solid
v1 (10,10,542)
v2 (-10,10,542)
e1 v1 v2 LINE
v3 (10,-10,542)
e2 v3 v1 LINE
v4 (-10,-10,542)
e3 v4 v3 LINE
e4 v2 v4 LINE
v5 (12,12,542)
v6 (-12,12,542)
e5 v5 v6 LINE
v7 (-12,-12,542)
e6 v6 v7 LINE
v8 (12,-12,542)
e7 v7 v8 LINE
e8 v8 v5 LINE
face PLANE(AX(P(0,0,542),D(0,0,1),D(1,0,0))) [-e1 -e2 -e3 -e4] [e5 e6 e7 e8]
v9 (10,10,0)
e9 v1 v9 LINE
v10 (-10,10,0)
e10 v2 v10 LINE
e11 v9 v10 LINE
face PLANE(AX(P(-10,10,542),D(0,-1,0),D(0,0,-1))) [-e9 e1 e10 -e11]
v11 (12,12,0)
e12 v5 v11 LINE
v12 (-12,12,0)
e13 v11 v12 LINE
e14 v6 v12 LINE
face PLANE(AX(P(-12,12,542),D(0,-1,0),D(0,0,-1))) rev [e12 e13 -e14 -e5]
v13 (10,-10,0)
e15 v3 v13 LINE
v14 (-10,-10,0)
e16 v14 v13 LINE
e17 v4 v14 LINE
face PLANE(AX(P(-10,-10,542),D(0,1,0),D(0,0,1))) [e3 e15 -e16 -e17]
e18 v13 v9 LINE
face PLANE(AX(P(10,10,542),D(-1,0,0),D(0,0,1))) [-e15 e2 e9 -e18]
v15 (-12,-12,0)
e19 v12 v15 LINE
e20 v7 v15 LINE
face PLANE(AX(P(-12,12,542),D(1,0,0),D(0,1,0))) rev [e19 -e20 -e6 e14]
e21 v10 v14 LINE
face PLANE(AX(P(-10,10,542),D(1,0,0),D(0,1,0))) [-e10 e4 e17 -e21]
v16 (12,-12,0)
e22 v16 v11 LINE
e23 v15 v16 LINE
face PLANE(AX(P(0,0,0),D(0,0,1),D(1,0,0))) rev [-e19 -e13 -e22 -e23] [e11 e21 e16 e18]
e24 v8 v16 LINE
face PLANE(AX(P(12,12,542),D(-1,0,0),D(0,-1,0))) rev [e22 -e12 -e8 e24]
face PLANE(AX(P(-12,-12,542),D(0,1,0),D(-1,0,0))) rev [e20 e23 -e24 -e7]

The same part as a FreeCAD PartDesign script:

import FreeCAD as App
import Part
import Sketcher
Q = App.Units.Quantity

doc = App.newDocument("Part")
body = doc.addObject("PartDesign::Body", "Body")

# Sketch on XY plane
sketch1 = doc.addObject("Sketcher::SketchObject", "Sketch")
body.addObject(sketch1)
sketch1.AttachmentSupport = (doc.XY_Plane, [""])
sketch1.MapMode = "FlatFace"
sketch1.addGeometry([
    Part.LineSegment(App.Vector(-12, 12, 0), App.Vector(-12, -12, 0)),  # 0
    Part.LineSegment(App.Vector(-12, -12, 0), App.Vector(12, -12, 0)),  # 1
    Part.LineSegment(App.Vector(12, -12, 0), App.Vector(12, 12, 0)),  # 2
    Part.LineSegment(App.Vector(12, 12, 0), App.Vector(-12, 12, 0)),  # 3
    Part.LineSegment(App.Vector(10, -10, 0), App.Vector(-10, -10, 0)),  # 4
    Part.LineSegment(App.Vector(-10, -10, 0), App.Vector(-10, 10, 0)),  # 5
    Part.LineSegment(App.Vector(-10, 10, 0), App.Vector(10, 10, 0)),  # 6
    Part.LineSegment(App.Vector(10, 10, 0), App.Vector(10, -10, 0)),  # 7
], False)
sketch1.addConstraint([
    Sketcher.Constraint("Coincident", 0, 2, 1, 1),
    Sketcher.Constraint("Coincident", 1, 2, 2, 1),
    Sketcher.Constraint("Coincident", 2, 2, 3, 1),
    Sketcher.Constraint("Coincident", 3, 2, 0, 1),
    Sketcher.Constraint("Coincident", 4, 2, 5, 1),
    Sketcher.Constraint("Coincident", 5, 2, 6, 1),
    Sketcher.Constraint("Coincident", 6, 2, 7, 1),
    Sketcher.Constraint("Coincident", 7, 2, 4, 1),
    Sketcher.Constraint("Vertical", 0),
    Sketcher.Constraint("Horizontal", 1),
    Sketcher.Constraint("Vertical", 2),
    Sketcher.Constraint("Horizontal", 3),
    Sketcher.Constraint("Horizontal", 4),
    Sketcher.Constraint("Vertical", 5),
    Sketcher.Constraint("Horizontal", 6),
    Sketcher.Constraint("Vertical", 7),
    Sketcher.Constraint("Symmetric", 0, 2, 2, 2, -1, 1),
    Sketcher.Constraint("Symmetric", 4, 2, 6, 2, -1, 1),
    Sketcher.Constraint("Equal", 3, 0),
    Sketcher.Constraint("Equal", 6, 5),
    Sketcher.Constraint("DistanceX", 1, 1, 1, 2, Q("24 mm")),
    Sketcher.Constraint("DistanceX", 4, 2, 4, 1, Q("20 mm")),
])
pad1 = doc.addObject("PartDesign::Pad", "Pad")
body.addObject(pad1)
pad1.Profile = sketch1
pad1.Length = 542

doc.recompute()
